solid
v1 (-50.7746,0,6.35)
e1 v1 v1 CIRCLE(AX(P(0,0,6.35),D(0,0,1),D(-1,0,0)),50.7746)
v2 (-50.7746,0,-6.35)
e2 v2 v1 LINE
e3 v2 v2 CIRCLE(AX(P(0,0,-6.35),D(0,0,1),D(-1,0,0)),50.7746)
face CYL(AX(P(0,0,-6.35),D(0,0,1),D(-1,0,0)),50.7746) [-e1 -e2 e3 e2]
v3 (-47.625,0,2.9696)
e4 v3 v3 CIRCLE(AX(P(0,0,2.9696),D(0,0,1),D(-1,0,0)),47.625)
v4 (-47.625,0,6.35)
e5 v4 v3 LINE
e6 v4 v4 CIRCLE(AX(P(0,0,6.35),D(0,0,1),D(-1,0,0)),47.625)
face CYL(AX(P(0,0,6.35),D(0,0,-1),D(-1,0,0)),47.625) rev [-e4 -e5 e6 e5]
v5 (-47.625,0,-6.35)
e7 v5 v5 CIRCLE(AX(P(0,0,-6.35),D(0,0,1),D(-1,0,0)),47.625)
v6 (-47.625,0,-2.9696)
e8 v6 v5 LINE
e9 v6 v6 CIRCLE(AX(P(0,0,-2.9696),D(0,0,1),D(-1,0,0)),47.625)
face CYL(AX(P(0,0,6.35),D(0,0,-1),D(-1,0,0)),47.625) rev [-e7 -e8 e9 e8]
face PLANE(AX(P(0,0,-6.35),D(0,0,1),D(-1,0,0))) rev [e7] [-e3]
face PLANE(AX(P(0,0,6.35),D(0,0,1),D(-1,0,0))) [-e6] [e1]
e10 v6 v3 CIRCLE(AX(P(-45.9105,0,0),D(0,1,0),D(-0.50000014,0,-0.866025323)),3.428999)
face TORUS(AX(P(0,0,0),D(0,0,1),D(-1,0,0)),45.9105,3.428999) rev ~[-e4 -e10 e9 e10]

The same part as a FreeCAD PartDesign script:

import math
import FreeCAD as App
import Part
import Sketcher
from FreeCAD import Vector
Q = App.Units.Quantity

doc = App.newDocument("Part")
body = doc.addObject("PartDesign::Body", "Body")

# Sketch on XZ plane
sketch1 = body.newObject("Sketcher::SketchObject", "Sketch")
sketch1.AttachmentSupport = (doc.getObject("XZ_Plane"), [""])
sketch1.MapMode = "FlatFace"
sketch1.addGeometry([
    Part.LineSegment(Vector(-50.7746, -6.35, 0), Vector(-50.7746, 6.35, 0)),  # 0
    Part.LineSegment(Vector(-50.7746, 6.35, 0), Vector(-47.625, 6.35, 0)),  # 1
    Part.LineSegment(Vector(-47.625, 6.35, 0), Vector(-47.625, 2.9696, 0)),  # 2
    Part.ArcOfCircle(Part.Circle(Vector(-45.9105, 0, 0), Vector(0, 0, 1), 3.428999), math.radians(120.000009), math.radians(239.999991)),  # 3
    Part.LineSegment(Vector(-47.625, -2.9696, 0), Vector(-47.625, -6.35, 0)),  # 4
    Part.LineSegment(Vector(-47.625, -6.35, 0), Vector(-50.7746, -6.35, 0)),  # 5
], False)
sketch1.addConstraint([
    Sketcher.Constraint("Coincident", 0, 2, 1, 1),
    Sketcher.Constraint("Coincident", 1, 2, 2, 1),
    Sketcher.Constraint("Coincident", 2, 2, 3, 1),
    Sketcher.Constraint("Coincident", 3, 2, 4, 1),
    Sketcher.Constraint("Coincident", 4, 2, 5, 1),
    Sketcher.Constraint("Coincident", 5, 2, 0, 1),
    Sketcher.Constraint("Vertical", 0),
    Sketcher.Constraint("Horizontal", 1),
    Sketcher.Constraint("Vertical", 2),
    Sketcher.Constraint("Vertical", 4),
    Sketcher.Constraint("Horizontal", 5),
    Sketcher.Constraint("Symmetric", 2, 2, 3, 2, -1),
    Sketcher.Constraint("Equal", 2, 4),
    Sketcher.Constraint("Radius", 3, Q("0.135 in")),
    Sketcher.Constraint("DistanceX", 1, 1, 1, 2, Q("0.124 in")),
    Sketcher.Constraint("DistanceY", -1, 1, 0, 2, Q("0.25 in")),
    Sketcher.Constraint("DistanceX", 1, 2, -1, 1, Q("1.875 in")),
    Sketcher.Constraint("DistanceX", 1, 2, 3, 3, Q("0.0675 in")),
])
revolution = body.newObject("PartDesign::Revolution", "Revolution")
revolution.Profile = sketch1
revolution.ReferenceAxis = (sketch1, ["V_Axis"])
revolution.Angle = 360

doc.recompute()
